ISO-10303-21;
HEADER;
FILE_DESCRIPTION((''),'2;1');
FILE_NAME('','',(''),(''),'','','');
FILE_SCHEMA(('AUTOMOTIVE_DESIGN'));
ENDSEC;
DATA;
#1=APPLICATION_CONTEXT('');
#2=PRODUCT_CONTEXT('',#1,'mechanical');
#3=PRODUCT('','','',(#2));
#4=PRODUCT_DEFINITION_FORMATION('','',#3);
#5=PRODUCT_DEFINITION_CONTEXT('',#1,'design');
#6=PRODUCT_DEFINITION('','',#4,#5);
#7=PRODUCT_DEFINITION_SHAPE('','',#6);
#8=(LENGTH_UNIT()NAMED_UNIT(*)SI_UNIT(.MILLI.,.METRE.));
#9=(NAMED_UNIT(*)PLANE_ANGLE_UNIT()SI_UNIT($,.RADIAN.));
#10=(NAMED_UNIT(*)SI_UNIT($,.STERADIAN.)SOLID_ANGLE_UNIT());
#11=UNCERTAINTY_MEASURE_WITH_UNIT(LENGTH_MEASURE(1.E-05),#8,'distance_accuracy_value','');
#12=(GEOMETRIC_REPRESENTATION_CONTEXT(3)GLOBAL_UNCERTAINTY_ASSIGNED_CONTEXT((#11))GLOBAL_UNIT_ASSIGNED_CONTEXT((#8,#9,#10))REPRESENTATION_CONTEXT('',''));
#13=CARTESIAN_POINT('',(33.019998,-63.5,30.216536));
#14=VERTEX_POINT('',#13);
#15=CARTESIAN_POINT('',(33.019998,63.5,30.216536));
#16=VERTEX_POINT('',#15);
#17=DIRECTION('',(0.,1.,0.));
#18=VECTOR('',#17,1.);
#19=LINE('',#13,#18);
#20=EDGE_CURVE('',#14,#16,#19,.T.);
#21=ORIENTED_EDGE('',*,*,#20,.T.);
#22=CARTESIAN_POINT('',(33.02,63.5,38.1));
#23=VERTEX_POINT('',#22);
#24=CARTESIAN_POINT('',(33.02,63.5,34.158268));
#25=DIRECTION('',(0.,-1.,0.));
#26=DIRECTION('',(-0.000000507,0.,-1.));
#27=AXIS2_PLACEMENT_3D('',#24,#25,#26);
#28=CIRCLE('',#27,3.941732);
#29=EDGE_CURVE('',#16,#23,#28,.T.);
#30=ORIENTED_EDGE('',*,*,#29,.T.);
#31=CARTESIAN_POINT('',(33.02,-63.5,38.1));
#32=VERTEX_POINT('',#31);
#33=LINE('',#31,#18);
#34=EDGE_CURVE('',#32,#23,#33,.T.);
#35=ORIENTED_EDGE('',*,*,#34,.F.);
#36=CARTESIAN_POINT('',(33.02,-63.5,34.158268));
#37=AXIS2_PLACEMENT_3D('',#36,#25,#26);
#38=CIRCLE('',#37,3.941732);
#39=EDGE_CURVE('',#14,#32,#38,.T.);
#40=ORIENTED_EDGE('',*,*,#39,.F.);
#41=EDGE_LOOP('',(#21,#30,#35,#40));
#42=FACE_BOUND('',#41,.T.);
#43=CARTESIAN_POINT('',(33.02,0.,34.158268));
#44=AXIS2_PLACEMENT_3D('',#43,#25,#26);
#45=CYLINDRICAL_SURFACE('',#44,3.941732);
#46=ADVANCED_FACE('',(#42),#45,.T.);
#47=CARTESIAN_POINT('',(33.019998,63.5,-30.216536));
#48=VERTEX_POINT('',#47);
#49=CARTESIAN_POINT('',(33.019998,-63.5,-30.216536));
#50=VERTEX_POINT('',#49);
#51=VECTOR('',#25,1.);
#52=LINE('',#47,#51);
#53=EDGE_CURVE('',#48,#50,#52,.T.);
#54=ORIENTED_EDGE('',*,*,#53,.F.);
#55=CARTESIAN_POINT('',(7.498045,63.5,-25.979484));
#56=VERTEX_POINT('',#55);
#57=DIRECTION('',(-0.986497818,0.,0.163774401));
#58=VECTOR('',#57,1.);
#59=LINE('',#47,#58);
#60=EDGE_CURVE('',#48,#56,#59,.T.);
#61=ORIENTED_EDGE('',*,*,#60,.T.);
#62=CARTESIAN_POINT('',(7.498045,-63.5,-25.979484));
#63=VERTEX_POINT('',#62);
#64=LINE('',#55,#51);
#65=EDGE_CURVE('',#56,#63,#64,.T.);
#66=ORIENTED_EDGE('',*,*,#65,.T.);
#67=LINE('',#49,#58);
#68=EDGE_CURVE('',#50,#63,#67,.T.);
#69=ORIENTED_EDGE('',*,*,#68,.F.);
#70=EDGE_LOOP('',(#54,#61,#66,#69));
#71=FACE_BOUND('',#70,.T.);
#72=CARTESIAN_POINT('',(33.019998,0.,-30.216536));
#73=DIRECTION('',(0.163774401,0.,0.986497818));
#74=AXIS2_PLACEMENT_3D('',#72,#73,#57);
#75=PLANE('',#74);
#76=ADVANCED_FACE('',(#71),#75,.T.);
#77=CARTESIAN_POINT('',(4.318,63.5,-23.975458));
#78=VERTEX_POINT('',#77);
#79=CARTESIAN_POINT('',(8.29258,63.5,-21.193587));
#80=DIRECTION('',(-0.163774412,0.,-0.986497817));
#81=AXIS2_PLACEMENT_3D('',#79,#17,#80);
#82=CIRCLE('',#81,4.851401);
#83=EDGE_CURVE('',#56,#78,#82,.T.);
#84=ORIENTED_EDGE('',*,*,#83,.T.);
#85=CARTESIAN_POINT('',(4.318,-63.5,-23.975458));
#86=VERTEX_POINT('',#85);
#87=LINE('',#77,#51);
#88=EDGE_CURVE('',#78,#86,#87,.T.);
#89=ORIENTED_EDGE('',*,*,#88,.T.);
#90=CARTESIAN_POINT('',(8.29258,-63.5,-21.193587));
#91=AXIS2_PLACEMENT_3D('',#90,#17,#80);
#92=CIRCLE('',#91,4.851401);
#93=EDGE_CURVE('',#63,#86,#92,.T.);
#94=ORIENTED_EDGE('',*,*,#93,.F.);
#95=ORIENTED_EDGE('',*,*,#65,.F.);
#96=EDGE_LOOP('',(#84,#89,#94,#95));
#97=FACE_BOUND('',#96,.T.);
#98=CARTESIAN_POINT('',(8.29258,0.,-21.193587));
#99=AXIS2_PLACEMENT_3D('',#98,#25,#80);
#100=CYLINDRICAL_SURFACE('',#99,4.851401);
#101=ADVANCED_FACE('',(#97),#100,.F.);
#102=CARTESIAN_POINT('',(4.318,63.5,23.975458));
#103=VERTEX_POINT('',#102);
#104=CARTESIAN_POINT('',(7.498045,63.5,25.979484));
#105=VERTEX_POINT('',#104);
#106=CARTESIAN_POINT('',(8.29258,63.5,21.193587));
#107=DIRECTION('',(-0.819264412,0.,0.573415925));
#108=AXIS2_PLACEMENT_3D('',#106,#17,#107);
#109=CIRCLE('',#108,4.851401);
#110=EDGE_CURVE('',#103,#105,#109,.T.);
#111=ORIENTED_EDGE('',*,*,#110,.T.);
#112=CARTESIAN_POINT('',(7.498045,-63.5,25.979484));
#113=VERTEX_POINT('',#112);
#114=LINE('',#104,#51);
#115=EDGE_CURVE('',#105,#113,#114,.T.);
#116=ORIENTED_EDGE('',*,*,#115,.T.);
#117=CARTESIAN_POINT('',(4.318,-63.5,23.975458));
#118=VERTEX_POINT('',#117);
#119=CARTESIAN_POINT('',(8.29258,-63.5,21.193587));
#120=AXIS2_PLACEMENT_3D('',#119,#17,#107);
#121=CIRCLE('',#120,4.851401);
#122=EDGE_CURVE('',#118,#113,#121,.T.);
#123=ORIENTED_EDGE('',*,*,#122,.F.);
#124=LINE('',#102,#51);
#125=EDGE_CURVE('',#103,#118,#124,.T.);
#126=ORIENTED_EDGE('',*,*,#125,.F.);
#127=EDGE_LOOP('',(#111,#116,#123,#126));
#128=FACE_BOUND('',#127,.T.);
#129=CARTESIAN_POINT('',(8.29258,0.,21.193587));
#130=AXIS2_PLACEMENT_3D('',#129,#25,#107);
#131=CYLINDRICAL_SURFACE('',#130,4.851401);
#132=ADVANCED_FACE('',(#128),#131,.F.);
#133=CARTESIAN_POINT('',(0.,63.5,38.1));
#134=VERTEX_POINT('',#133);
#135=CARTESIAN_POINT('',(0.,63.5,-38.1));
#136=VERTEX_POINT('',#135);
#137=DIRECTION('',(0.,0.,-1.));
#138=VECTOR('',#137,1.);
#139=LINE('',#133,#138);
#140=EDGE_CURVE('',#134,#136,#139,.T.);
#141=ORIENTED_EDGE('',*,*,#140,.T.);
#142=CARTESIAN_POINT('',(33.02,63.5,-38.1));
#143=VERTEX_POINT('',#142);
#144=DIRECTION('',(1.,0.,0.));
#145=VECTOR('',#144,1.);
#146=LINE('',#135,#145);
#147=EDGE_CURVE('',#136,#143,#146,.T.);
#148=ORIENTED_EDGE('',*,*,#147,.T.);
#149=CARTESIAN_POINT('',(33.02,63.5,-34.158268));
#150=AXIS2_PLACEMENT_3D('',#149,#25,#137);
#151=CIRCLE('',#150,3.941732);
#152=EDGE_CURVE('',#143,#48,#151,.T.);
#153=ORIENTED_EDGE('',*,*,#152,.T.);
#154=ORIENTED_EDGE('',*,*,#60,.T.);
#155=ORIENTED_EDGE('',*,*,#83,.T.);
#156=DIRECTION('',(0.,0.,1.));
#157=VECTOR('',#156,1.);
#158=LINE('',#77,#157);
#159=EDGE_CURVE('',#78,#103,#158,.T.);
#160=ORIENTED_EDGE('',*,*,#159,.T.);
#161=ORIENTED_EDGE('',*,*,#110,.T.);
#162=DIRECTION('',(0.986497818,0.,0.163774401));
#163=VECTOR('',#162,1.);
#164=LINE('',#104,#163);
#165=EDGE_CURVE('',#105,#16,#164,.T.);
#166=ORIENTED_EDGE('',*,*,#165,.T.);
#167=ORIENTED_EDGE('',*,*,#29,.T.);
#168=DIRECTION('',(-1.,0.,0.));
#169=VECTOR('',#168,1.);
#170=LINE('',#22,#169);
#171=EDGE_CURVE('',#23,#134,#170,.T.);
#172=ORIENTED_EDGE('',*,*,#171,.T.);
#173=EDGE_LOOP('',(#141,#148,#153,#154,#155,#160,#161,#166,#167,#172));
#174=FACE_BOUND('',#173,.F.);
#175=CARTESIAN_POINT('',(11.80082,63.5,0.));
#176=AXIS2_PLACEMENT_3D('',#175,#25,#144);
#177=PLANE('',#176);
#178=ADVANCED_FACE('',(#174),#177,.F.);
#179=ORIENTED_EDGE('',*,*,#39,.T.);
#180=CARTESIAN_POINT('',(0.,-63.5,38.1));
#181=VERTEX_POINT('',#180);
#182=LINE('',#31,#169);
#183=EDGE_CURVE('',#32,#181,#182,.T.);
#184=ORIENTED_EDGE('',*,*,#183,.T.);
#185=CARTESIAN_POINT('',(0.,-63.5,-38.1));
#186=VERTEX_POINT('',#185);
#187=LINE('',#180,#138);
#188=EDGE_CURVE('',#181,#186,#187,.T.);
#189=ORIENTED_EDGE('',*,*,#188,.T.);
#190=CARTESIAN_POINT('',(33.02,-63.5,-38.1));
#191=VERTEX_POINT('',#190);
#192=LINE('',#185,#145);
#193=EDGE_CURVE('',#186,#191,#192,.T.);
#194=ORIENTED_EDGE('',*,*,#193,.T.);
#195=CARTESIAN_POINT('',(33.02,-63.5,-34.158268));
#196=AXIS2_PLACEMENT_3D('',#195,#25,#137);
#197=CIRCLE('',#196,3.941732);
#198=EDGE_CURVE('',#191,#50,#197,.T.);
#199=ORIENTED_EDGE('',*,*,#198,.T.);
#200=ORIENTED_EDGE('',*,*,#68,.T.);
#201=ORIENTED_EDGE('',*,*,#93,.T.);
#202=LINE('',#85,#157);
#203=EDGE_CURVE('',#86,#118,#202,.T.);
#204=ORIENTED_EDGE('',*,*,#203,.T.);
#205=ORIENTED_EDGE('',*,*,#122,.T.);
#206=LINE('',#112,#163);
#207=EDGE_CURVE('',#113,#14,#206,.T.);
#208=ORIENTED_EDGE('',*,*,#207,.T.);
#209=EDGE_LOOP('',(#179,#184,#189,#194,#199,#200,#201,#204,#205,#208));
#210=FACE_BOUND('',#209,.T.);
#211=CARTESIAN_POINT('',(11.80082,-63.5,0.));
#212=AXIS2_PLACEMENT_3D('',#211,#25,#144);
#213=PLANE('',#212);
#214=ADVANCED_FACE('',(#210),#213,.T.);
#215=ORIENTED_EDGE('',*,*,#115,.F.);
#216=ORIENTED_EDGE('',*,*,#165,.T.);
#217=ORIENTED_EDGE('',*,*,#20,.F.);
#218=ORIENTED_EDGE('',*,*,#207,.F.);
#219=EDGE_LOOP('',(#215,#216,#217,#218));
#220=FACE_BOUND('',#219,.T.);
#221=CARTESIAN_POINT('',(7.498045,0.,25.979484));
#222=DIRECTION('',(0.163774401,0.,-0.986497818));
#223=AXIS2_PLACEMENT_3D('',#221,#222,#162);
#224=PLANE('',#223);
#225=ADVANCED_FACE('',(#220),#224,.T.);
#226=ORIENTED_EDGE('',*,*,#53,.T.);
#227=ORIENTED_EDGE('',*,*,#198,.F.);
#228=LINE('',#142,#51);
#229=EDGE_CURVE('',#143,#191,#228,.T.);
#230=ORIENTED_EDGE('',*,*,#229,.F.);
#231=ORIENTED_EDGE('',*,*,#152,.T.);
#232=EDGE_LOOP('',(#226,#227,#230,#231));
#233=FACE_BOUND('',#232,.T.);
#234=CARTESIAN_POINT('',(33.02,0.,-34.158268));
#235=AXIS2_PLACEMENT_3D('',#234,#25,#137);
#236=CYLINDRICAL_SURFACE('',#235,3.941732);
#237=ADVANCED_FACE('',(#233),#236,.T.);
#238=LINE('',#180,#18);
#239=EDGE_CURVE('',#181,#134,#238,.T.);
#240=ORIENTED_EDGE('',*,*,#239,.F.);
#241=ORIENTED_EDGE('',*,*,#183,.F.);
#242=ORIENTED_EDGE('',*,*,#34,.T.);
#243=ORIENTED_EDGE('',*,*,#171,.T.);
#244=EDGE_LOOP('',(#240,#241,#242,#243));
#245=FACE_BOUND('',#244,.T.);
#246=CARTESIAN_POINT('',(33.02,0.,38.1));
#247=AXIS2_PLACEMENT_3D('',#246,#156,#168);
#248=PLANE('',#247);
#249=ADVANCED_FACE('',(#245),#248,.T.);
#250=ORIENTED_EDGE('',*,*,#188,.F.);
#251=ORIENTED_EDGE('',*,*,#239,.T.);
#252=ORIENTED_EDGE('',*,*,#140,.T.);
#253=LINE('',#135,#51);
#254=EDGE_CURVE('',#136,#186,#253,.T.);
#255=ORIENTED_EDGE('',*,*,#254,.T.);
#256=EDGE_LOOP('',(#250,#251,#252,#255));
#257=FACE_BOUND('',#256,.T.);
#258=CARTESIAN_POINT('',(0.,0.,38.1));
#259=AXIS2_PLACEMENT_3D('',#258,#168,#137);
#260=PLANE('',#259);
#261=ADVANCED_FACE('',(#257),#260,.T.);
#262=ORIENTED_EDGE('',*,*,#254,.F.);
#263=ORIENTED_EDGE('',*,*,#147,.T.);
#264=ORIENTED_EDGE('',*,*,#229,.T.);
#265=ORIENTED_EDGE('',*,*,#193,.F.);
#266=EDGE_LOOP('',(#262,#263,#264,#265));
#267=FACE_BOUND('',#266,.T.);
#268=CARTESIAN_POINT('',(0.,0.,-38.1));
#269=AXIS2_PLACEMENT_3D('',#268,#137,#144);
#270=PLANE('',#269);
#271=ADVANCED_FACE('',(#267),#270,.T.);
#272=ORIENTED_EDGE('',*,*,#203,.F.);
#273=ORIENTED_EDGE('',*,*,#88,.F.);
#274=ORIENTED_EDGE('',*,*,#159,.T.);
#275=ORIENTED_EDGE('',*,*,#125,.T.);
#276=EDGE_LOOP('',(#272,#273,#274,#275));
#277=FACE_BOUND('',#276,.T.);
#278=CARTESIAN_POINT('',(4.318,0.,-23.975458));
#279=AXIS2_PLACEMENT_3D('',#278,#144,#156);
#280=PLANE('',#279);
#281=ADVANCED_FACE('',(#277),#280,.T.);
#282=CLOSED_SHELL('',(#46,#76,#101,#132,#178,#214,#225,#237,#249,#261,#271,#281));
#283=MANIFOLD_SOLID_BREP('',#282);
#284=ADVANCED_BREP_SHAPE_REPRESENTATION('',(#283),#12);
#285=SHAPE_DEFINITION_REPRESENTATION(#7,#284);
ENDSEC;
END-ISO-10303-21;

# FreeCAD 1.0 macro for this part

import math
import FreeCAD as App
import Part
import Sketcher
Q = App.Units.Quantity

doc = App.newDocument("Part")
body = doc.addObject("PartDesign::Body", "Body")

sketch1 = body.newObject("Sketcher::SketchObject", "Sketch")
sketch1.AttachmentSupport = (doc.getObject("XZ_Plane"), [""])
sketch1.MapMode = "FlatFace"
sketch1.addGeometry(Part.LineSegment(App.Vector(0, 38.1, 0), App.Vector(0, -38.1, 0)), False)
sketch1.addGeometry(Part.LineSegment(App.Vector(0, -38.1, 0), App.Vector(33, -38.1, 0)), False)
sketch1.addGeometry(Part.ArcOfCircle(Part.Circle(App.Vector(33, -34.2, 0), App.Vector(0, 0, 1), 3.9), math.radians(-90), math.radians(90)), False)
sketch1.addGeometry(Part.LineSegment(App.Vector(33, -30.2, 0), App.Vector(7.5, -26, 0)), False)
sketch1.addGeometry(Part.ArcOfCircle(Part.Circle(App.Vector(8.3, -21.2, 0), App.Vector(0, 0, 1), 4.9), math.radians(-145), math.radians(-99)), False)
sketch1.addGeometry(Part.LineSegment(App.Vector(4.3, -24, 0), App.Vector(4.3, 24, 0)), False)
sketch1.addGeometry(Part.ArcOfCircle(Part.Circle(App.Vector(8.3, 21.2, 0), App.Vector(0, 0, 1), 4.9), math.radians(99), math.radians(145)), False)
sketch1.addGeometry(Part.LineSegment(App.Vector(7.5, 26, 0), App.Vector(33, 30.2, 0)), False)
sketch1.addGeometry(Part.ArcOfCircle(Part.Circle(App.Vector(33, 34.2, 0), App.Vector(0, 0, 1), 3.9), math.radians(-90), math.radians(90)), False)
sketch1.addGeometry(Part.LineSegment(App.Vector(33, 38.1, 0), App.Vector(0, 38.1, 0)), False)
sketch1.addConstraint(Sketcher.Constraint("Coincident", 0, 2, 1, 1))
sketch1.addConstraint(Sketcher.Constraint("Tangent", 1, 2, 2, 1))
sketch1.addConstraint(Sketcher.Constraint("Coincident", 2, 2, 3, 1))
sketch1.addConstraint(Sketcher.Constraint("Tangent", 3, 2, 4, 2))
sketch1.addConstraint(Sketcher.Constraint("Coincident", 4, 1, 5, 1))
sketch1.addConstraint(Sketcher.Constraint("Coincident", 5, 2, 6, 2))
sketch1.addConstraint(Sketcher.Constraint("Tangent", 6, 1, 7, 1))
sketch1.addConstraint(Sketcher.Constraint("Coincident", 7, 2, 8, 1))
sketch1.addConstraint(Sketcher.Constraint("Tangent", 8, 2, 9, 1))
sketch1.addConstraint(Sketcher.Constraint("Coincident", 9, 2, 0, 1))
sketch1.addConstraint(Sketcher.Constraint("Vertical", 0))
sketch1.addConstraint(Sketcher.Constraint("Horizontal", 1))
sketch1.addConstraint(Sketcher.Constraint("Vertical", 5))
sketch1.addConstraint(Sketcher.Constraint("Horizontal", 9))
sketch1.addConstraint(Sketcher.Constraint("Equal", 4, 6))
sketch1.addConstraint(Sketcher.Constraint("Equal", 2, 8))
sketch1.addConstraint(Sketcher.Constraint("Symmetric", 0, 2, 9, 2, -1, 1))
sketch1.addConstraint(Sketcher.Constraint("Symmetric", 4, 3, 6, 3, -1))
sketch1.addConstraint(Sketcher.Constraint("Vertical", 2, 3, 8, 3))
sketch1.addConstraint(Sketcher.Constraint("Vertical", 3, 2, 6, 1))
sketch1.addConstraint(Sketcher.Constraint("DistanceY", 0, 2, 0, 1, Q("3 in")))
sketch1.addConstraint(Sketcher.Constraint("DistanceX", 1, 1, 1, 2, Q("1.3 in")))
sketch1.addConstraint(Sketcher.Constraint("Radius", 4, Q("0.191 in")))
sketch1.addConstraint(Sketcher.Constraint("DistanceX", -1, 1, 2, 2, Q("1.2999999 in")))
sketch1.addConstraint(Sketcher.Constraint("DistanceX", -1, 1, 4, 1, Q("0.17 in")))
sketch1.addConstraint(Sketcher.Constraint("Radius", 2, 3.941732))
sketch1.addConstraint(Sketcher.Constraint("Distance", 3, 25.871272))
sketch1.addConstraint(Sketcher.Constraint("DistanceY", 5, 1, 5, 2, 47.950916))
pad1 = body.newObject("PartDesign::Pad", "Pad")
pad1.Profile = sketch1
pad1.Length = Q("5 in")
pad1.Midplane = True

doc.recompute()
